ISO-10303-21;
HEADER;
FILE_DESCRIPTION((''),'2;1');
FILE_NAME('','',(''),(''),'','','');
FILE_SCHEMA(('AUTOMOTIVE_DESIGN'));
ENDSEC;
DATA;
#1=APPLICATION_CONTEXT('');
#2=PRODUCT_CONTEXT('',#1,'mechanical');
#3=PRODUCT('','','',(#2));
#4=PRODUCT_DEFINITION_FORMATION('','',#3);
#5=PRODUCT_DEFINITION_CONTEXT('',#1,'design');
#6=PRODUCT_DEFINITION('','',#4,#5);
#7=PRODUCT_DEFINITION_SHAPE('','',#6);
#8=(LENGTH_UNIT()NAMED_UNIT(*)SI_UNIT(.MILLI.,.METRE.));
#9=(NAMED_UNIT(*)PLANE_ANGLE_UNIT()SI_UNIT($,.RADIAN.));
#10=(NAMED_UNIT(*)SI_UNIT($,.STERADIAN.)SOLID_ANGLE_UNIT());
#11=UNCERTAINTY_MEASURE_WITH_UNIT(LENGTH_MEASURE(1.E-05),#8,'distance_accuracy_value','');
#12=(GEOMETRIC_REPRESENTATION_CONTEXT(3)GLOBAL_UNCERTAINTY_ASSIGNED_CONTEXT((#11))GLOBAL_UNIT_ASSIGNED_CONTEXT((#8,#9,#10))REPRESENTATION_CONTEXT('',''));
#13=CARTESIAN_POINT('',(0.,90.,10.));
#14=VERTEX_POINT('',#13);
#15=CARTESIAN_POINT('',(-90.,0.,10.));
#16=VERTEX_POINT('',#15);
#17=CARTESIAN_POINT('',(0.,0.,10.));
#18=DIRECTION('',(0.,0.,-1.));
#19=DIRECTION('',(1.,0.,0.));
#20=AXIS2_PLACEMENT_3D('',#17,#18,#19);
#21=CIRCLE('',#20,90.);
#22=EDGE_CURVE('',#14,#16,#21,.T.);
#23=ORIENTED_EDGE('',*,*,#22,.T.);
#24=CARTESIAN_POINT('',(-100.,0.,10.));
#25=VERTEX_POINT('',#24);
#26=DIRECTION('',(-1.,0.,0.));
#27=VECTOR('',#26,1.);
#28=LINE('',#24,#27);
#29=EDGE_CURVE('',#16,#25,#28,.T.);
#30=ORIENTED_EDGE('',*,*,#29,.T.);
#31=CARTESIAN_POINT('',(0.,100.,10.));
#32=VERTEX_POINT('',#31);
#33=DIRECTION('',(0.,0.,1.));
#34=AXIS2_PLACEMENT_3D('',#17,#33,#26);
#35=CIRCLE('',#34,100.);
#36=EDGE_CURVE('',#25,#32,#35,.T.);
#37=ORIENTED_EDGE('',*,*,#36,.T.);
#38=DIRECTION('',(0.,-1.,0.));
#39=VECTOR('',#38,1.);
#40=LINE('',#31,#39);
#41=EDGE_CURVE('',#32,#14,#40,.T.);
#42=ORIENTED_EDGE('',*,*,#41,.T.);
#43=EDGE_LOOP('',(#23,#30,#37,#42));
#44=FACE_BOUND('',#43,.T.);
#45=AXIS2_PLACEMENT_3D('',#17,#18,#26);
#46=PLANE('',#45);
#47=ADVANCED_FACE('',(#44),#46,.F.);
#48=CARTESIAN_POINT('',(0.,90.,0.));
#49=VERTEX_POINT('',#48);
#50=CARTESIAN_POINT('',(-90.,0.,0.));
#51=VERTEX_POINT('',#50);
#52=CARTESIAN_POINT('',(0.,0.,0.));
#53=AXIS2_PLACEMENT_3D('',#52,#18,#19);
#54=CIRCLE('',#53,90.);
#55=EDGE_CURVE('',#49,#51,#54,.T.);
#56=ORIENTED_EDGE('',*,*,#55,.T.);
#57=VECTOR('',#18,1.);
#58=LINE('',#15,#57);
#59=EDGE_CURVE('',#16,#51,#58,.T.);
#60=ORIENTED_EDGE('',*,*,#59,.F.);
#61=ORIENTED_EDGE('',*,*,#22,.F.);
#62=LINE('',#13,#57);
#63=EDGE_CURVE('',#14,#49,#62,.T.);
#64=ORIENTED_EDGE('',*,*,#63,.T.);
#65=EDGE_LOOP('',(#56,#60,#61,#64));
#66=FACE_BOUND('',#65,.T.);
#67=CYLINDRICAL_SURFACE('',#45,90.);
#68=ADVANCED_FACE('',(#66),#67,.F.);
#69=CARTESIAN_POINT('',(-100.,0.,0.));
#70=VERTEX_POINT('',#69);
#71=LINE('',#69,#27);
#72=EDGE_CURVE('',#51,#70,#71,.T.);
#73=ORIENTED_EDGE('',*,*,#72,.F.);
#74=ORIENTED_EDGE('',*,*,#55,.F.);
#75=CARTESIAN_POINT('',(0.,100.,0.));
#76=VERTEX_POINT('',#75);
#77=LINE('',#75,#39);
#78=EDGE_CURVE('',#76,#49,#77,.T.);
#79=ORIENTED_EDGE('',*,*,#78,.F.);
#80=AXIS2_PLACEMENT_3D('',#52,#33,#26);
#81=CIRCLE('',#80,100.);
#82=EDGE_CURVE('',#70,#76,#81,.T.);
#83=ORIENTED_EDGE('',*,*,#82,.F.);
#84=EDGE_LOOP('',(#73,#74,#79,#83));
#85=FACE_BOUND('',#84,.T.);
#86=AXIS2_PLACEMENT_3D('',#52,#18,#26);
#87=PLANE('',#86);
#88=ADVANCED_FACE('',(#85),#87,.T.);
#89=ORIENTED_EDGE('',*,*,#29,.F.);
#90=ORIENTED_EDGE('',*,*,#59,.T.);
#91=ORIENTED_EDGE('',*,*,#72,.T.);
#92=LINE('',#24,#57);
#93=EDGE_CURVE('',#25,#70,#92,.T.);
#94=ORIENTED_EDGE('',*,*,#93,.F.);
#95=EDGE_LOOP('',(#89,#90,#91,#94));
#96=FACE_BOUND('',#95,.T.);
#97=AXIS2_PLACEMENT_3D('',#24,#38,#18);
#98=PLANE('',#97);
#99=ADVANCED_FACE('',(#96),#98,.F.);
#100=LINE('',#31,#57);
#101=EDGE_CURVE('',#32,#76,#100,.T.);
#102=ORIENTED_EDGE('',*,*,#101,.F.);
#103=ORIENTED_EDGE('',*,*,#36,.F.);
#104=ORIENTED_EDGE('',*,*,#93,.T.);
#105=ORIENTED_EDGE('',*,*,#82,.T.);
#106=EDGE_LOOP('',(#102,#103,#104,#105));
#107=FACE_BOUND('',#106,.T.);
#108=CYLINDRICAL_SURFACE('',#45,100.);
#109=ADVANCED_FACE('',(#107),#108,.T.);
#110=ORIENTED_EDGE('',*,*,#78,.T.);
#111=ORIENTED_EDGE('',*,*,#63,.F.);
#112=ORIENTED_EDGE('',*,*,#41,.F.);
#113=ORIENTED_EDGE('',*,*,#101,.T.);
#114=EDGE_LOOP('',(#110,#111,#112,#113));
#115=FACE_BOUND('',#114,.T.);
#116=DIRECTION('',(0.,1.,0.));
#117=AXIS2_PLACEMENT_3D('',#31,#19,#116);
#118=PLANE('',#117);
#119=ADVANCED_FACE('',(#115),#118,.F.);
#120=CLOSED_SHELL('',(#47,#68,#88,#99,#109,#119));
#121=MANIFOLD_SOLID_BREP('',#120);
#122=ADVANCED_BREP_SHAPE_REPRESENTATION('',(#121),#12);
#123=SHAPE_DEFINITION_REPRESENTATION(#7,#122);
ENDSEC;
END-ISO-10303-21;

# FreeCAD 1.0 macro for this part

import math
import FreeCAD as App
import Part
import Sketcher
from FreeCAD import Vector

doc = App.newDocument("Part")
body = doc.addObject("PartDesign::Body", "Body")

# Sketch on XY plane
sketch1 = doc.addObject("Sketcher::SketchObject", "Sketch")
body.addObject(sketch1)
sketch1.AttachmentSupport = (doc.XY_Plane, [""])
sketch1.MapMode = "FlatFace"
sketch1.addGeometry(Part.LineSegment(Vector(-90, 0, 0), Vector(-100, 0, 0)), False)
sketch1.addGeometry(Part.ArcOfCircle(Part.Circle(Vector(0, 0, 0), Vector(0, 0, 1), 100), math.radians(180), math.radians(450)), False)
sketch1.addGeometry(Part.LineSegment(Vector(0, 100, 0), Vector(0, 90, 0)), False)
sketch1.addGeometry(Part.ArcOfCircle(Part.Circle(Vector(0, 0, 0), Vector(0, 0, 1), 90), math.radians(180), math.radians(450)), False)
sketch1.addConstraint(Sketcher.Constraint("Coincident", 0, 2, 1, 1))
sketch1.addConstraint(Sketcher.Constraint("Coincident", 1, 2, 2, 1))
sketch1.addConstraint(Sketcher.Constraint("Coincident", 2, 2, 3, 2))
sketch1.addConstraint(Sketcher.Constraint("Coincident", 3, 1, 0, 1))
sketch1.addConstraint(Sketcher.Constraint("Horizontal", 0))
sketch1.addConstraint(Sketcher.Constraint("Vertical", 2))
sketch1.addConstraint(Sketcher.Constraint("Coincident", 1, 3, -1, 1))
sketch1.addConstraint(Sketcher.Constraint("Coincident", 3, 3, -1, 1))
sketch1.addConstraint(Sketcher.Constraint("PointOnObject", 0, 2, -1))
sketch1.addConstraint(Sketcher.Constraint("PointOnObject", 1, 2, -2))
sketch1.addConstraint(Sketcher.Constraint("Radius", 1, 100.0))
sketch1.addConstraint(Sketcher.Constraint("Radius", 3, 90.0))
pad1 = doc.addObject("PartDesign::Pad", "Pad")
body.addObject(pad1)
pad1.Profile = sketch1
pad1.Length = 10

doc.recompute()
